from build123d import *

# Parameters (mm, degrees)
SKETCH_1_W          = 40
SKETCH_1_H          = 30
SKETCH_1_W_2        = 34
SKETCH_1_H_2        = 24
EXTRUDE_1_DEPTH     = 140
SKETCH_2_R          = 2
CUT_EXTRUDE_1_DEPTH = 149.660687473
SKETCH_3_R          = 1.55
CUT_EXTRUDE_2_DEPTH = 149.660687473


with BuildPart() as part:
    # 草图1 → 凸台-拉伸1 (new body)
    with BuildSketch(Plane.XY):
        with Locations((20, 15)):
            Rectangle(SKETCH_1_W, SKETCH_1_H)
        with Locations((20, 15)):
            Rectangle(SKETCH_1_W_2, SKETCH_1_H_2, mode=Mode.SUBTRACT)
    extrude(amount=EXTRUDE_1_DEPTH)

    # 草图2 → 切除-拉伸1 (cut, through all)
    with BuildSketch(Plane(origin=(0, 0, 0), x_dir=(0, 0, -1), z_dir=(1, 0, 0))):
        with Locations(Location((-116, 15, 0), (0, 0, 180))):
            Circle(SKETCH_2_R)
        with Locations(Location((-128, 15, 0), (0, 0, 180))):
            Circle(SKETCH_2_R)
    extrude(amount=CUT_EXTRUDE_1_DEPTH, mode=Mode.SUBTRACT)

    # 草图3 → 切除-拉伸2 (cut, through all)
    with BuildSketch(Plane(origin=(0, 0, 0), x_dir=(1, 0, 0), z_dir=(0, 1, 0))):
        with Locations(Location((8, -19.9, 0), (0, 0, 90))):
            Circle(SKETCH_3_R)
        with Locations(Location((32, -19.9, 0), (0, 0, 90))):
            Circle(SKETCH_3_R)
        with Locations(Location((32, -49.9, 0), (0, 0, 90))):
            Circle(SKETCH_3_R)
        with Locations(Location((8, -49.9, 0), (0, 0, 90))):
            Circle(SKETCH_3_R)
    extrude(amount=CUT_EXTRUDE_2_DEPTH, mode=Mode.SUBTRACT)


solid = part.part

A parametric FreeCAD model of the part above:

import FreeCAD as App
import Part
import Sketcher
from FreeCAD import Vector


def add_polygon(sketch, points):
    """Adds a closed chain of lines whose ends are joined by coincident constraints."""
    first, n = sketch.GeometryCount, len(points)
    for a, b in zip(points, points[1:] + points[:1]):
        sketch.addGeometry(Part.LineSegment(App.Vector(*a, 0), App.Vector(*b, 0)), False)
    for i in range(n):
        sketch.addConstraint(Sketcher.Constraint("Coincident", first + i, 2, first + (i + 1) % n, 1))

doc = App.newDocument("Part")
body = doc.addObject("PartDesign::Body", "Body")

# Sketch on XY plane
sketch1 = body.newObject("Sketcher::SketchObject", "Sketch")
sketch1.AttachmentSupport = (doc.getObject("XY_Plane"), [""])
sketch1.MapMode = "FlatFace"
add_polygon(sketch1, [(0, 30), (0, 0), (40, 0), (40, 30)])  # lines 0-3
add_polygon(sketch1, [(37, 3), (3, 3), (3, 27), (37, 27)])  # lines 4-7
sketch1.addConstraint(Sketcher.Constraint("Vertical", 0))
sketch1.addConstraint(Sketcher.Constraint("Horizontal", 1))
sketch1.addConstraint(Sketcher.Constraint("Vertical", 2))
sketch1.addConstraint(Sketcher.Constraint("Horizontal", 3))
sketch1.addConstraint(Sketcher.Constraint("Horizontal", 4))
sketch1.addConstraint(Sketcher.Constraint("Vertical", 5))
sketch1.addConstraint(Sketcher.Constraint("Horizontal", 6))
sketch1.addConstraint(Sketcher.Constraint("Vertical", 7))
sketch1.addConstraint(Sketcher.Constraint("Coincident", 0, 2, -1, 1))
sketch1.addConstraint(Sketcher.Constraint("DistanceX", 1, 1, 1, 2, 40.0))
sketch1.addConstraint(Sketcher.Constraint("DistanceX", 4, 2, 4, 1, 34.0))
sketch1.addConstraint(Sketcher.Constraint("DistanceY", 0, 2, 0, 1, 30.0))
sketch1.addConstraint(Sketcher.Constraint("DistanceY", 5, 1, 5, 2, 24.0))
sketch1.addConstraint(Sketcher.Constraint("DistanceX", -1, 1, 4, 2, 3.0))
sketch1.addConstraint(Sketcher.Constraint("DistanceY", -1, 1, 4, 2, 3.0))
pad1 = body.newObject("PartDesign::Pad", "Pad")
pad1.Profile = sketch1
pad1.Length = 140

# Sketch on YZ plane
sketch2 = body.newObject("Sketcher::SketchObject", "Sketch001")
sketch2.AttachmentSupport = (doc.getObject("YZ_Plane"), [""])
sketch2.MapMode = "FlatFace"
sketch2.addGeometry(Part.Circle(Vector(15, 116, 0), Vector(0, 0, 1), 2), False)
sketch2.addGeometry(Part.Circle(Vector(15, 128, 0), Vector(0, 0, 1), 2), False)
sketch2.addConstraint(Sketcher.Constraint("Equal", 0, 1))
sketch2.addConstraint(Sketcher.Constraint("Vertical", 0, 3, 1, 3))
sketch2.addConstraint(Sketcher.Constraint("Diameter", 0, 4.0))
sketch2.addConstraint(Sketcher.Constraint("DistanceX", -1, 1, 0, 3, 15.0))
sketch2.addConstraint(Sketcher.Constraint("DistanceY", -1, 1, 0, 3, 116.0))
sketch2.addConstraint(Sketcher.Constraint("DistanceY", -1, 1, 1, 3, 128.0))
pocket1 = body.newObject("PartDesign::Pocket", "Pocket")
pocket1.Profile = sketch2
pocket1.Type = "ThroughAll"
pocket1.Reversed = True

# Sketch on XZ plane
sketch3 = body.newObject("Sketcher::SketchObject", "Sketch002")
sketch3.AttachmentSupport = (doc.getObject("XZ_Plane"), [""])
sketch3.MapMode = "FlatFace"
sketch3.addGeometry(Part.Circle(Vector(8, 19.9, 0), Vector(0, 0, 1), 1.55), False)
sketch3.addGeometry(Part.Circle(Vector(32, 19.9, 0), Vector(0, 0, 1), 1.55), False)
sketch3.addGeometry(Part.Circle(Vector(32, 49.9, 0), Vector(0, 0, 1), 1.55), False)
sketch3.addGeometry(Part.Circle(Vector(8, 49.9, 0), Vector(0, 0, 1), 1.55), False)
sketch3.addConstraint(Sketcher.Constraint("Equal", 0, 1))
sketch3.addConstraint(Sketcher.Constraint("Equal", 1, 2))
sketch3.addConstraint(Sketcher.Constraint("Equal", 2, 3))
sketch3.addConstraint(Sketcher.Constraint("Horizontal", 0, 3, 1, 3))
sketch3.addConstraint(Sketcher.Constraint("Horizontal", 2, 3, 3, 3))
sketch3.addConstraint(Sketcher.Constraint("Vertical", 1, 3, 2, 3))
sketch3.addConstraint(Sketcher.Constraint("Vertical", 0, 3, 3, 3))
sketch3.addConstraint(Sketcher.Constraint("Diameter", 0, 3.1))
sketch3.addConstraint(Sketcher.Constraint("DistanceX", -1, 1, 0, 3, 8.0))
sketch3.addConstraint(Sketcher.Constraint("DistanceX", -1, 1, 1, 3, 32.0))
sketch3.addConstraint(Sketcher.Constraint("DistanceY", 1, 3, 2, 3, 30.0))
sketch3.addConstraint(Sketcher.Constraint("DistanceY", -1, 1, 0, 3, 19.9))
pocket2 = body.newObject("PartDesign::Pocket", "Pocket001")
pocket2.Profile = sketch3
pocket2.Type = "ThroughAll"

doc.recompute()
